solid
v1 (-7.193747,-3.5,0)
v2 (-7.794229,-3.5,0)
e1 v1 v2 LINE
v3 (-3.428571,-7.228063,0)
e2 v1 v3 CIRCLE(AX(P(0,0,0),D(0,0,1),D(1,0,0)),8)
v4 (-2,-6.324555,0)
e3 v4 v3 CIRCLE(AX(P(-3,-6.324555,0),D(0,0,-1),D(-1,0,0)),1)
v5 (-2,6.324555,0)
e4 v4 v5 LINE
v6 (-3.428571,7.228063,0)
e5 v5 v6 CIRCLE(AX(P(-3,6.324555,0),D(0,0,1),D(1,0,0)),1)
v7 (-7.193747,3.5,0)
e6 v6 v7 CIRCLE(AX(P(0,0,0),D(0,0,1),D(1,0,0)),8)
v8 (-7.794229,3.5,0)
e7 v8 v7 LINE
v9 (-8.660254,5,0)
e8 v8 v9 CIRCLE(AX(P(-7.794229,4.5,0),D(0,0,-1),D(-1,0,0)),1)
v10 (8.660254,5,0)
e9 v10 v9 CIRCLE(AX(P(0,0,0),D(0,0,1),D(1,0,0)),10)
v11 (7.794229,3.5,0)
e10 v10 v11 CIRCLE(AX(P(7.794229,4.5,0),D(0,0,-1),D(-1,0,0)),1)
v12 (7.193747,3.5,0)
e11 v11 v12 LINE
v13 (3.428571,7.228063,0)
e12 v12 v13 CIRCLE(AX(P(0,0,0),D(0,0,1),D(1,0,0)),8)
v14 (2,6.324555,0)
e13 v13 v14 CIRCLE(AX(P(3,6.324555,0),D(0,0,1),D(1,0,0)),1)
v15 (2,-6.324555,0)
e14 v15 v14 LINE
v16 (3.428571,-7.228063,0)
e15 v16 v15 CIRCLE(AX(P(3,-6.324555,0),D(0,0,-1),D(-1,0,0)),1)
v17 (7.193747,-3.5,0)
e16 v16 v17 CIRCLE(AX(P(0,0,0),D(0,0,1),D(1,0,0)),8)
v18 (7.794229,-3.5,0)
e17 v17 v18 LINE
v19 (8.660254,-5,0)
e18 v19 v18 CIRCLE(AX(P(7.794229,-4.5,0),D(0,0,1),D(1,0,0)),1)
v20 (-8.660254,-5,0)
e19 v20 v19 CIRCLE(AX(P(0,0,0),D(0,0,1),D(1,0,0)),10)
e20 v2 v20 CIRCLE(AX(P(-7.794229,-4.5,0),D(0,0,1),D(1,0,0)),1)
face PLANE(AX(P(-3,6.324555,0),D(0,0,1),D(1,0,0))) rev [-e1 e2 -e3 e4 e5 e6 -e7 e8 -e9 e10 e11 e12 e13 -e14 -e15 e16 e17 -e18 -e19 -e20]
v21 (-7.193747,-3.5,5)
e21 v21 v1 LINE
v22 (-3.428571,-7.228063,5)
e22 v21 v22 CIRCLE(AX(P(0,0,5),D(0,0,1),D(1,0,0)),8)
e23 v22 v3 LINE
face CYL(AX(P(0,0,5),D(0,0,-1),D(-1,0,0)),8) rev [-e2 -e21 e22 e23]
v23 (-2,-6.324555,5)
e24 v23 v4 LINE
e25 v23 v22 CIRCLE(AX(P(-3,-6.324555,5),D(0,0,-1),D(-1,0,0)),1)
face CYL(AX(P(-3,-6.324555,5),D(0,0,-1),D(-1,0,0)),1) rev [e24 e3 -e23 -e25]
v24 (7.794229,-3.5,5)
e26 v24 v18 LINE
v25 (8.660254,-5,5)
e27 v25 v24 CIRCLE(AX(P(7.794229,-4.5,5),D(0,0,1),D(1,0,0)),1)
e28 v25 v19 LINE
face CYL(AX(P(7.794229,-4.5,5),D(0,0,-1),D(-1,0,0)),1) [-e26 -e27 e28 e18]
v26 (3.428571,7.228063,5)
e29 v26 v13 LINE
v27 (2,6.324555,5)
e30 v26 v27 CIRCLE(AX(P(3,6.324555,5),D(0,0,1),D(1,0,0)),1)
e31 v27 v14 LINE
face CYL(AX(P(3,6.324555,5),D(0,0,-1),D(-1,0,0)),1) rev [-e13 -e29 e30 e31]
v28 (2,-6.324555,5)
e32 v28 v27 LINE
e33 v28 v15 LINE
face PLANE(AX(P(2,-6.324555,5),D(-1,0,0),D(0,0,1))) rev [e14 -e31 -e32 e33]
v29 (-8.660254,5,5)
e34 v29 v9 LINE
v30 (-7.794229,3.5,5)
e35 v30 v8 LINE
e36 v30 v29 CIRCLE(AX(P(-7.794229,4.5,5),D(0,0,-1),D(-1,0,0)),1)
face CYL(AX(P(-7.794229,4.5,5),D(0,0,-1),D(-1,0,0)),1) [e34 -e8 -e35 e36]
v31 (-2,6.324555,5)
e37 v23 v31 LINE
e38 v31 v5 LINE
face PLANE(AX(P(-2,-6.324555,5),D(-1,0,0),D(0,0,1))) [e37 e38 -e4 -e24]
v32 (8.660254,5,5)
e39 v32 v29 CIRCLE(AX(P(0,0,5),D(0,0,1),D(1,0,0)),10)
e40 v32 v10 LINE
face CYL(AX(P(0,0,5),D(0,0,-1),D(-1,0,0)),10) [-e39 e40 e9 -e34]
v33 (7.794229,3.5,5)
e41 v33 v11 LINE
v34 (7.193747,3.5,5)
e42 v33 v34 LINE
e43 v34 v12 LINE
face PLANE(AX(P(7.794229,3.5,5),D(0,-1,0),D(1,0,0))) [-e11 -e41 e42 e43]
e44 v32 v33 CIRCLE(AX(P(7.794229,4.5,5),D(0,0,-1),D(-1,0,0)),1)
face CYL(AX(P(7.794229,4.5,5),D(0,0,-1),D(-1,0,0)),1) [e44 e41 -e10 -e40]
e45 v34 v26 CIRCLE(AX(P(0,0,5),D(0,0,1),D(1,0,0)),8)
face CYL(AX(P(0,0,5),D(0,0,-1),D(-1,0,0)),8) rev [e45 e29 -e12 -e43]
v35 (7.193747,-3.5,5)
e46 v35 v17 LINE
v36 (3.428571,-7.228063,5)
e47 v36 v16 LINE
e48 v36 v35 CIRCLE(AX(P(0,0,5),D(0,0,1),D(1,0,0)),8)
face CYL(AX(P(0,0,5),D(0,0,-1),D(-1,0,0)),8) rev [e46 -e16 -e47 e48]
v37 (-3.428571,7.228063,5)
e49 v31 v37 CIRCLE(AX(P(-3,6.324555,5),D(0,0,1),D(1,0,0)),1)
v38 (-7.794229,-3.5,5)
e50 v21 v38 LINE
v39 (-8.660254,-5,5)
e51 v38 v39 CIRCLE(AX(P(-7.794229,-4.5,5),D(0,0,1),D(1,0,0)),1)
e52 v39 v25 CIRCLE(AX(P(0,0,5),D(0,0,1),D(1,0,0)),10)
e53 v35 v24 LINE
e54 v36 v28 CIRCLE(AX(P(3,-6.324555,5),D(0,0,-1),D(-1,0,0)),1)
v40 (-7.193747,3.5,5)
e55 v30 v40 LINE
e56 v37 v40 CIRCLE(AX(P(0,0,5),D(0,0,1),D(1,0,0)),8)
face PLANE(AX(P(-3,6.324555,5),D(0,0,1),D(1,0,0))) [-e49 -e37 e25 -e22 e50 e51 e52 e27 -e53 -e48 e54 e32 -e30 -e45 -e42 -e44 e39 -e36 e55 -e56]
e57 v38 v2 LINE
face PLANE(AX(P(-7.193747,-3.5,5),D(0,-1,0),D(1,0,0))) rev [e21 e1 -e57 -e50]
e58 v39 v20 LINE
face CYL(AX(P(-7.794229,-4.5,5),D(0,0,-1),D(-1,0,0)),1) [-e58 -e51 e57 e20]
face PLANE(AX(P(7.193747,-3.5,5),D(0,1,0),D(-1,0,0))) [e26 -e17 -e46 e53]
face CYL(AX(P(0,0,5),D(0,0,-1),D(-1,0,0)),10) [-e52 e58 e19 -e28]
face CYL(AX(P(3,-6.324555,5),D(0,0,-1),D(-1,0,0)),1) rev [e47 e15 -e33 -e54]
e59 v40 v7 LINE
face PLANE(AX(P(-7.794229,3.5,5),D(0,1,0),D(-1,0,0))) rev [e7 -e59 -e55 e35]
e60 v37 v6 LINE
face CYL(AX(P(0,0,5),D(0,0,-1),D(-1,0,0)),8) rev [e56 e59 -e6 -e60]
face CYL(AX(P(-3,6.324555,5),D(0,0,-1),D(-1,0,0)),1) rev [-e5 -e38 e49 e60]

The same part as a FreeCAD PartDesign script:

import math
import FreeCAD as App
import Part
import Sketcher

V = App.Vector
Q = App.Units.Quantity

doc = App.newDocument("Part")
body = doc.addObject("PartDesign::Body", "Body")

sketch1 = doc.addObject("Sketcher::SketchObject", "Sketch")
body.addObject(sketch1)
sketch1.AttachmentSupport = (doc.XY_Plane, [""])
sketch1.MapMode = "FlatFace"
sketch1.addGeometry(Part.LineSegment(V(-2, 6.3, 0), V(-2, -6.3, 0)), False)
sketch1.addGeometry(Part.ArcOfCircle(Part.Circle(V(-3, -6.3, 0), V(0, 0, 1), 1), math.radians(-115), math.radians(0)), False)
sketch1.addGeometry(Part.ArcOfCircle(Part.Circle(V(0, 0, 0), V(0, 0, 1), 8), math.radians(-154), math.radians(-115)), False)
sketch1.addGeometry(Part.LineSegment(V(-7.2, -3.5, 0), V(-7.8, -3.5, 0)), False)
sketch1.addGeometry(Part.ArcOfCircle(Part.Circle(V(-7.8, -4.5, 0), V(0, 0, 1), 1), math.radians(90), math.radians(210)), False)
sketch1.addGeometry(Part.ArcOfCircle(Part.Circle(V(0, 0, 0), V(0, 0, 1), 10), math.radians(-150), math.radians(-30)), False)
sketch1.addGeometry(Part.ArcOfCircle(Part.Circle(V(7.8, -4.5, 0), V(0, 0, 1), 1), math.radians(-30), math.radians(90)), False)
sketch1.addGeometry(Part.LineSegment(V(7.8, -3.5, 0), V(7.2, -3.5, 0)), False)
sketch1.addGeometry(Part.ArcOfCircle(Part.Circle(V(0, 0, 0), V(0, 0, 1), 8), math.radians(-65), math.radians(-26)), False)
sketch1.addGeometry(Part.ArcOfCircle(Part.Circle(V(3, -6.3, 0), V(0, 0, 1), 1), math.radians(180), math.radians(295)), False)
sketch1.addGeometry(Part.LineSegment(V(2, -6.3, 0), V(2, 6.3, 0)), False)
sketch1.addGeometry(Part.ArcOfCircle(Part.Circle(V(3, 6.3, 0), V(0, 0, 1), 1), math.radians(65), math.radians(180)), False)
sketch1.addGeometry(Part.ArcOfCircle(Part.Circle(V(0, 0, 0), V(0, 0, 1), 8), math.radians(26), math.radians(65)), False)
sketch1.addGeometry(Part.LineSegment(V(7.2, 3.5, 0), V(7.8, 3.5, 0)), False)
sketch1.addGeometry(Part.ArcOfCircle(Part.Circle(V(7.8, 4.5, 0), V(0, 0, 1), 1), math.radians(-90), math.radians(30)), False)
sketch1.addGeometry(Part.ArcOfCircle(Part.Circle(V(0, 0, 0), V(0, 0, 1), 10), math.radians(30), math.radians(150)), False)
sketch1.addGeometry(Part.ArcOfCircle(Part.Circle(V(-7.8, 4.5, 0), V(0, 0, 1), 1), math.radians(150), math.radians(270)), False)
sketch1.addGeometry(Part.LineSegment(V(-7.8, 3.5, 0), V(-7.2, 3.5, 0)), False)
sketch1.addGeometry(Part.ArcOfCircle(Part.Circle(V(0, 0, 0), V(0, 0, 1), 8), math.radians(115), math.radians(154)), False)
sketch1.addGeometry(Part.ArcOfCircle(Part.Circle(V(-3, 6.3, 0), V(0, 0, 1), 1), math.radians(0), math.radians(115)), False)
sketch1.addConstraint(Sketcher.Constraint("Tangent", 0, 2, 1, 2))
sketch1.addConstraint(Sketcher.Constraint("Tangent", 1, 1, 2, 2))
sketch1.addConstraint(Sketcher.Constraint("Coincident", 2, 1, 3, 1))
sketch1.addConstraint(Sketcher.Constraint("Tangent", 3, 2, 4, 1))
sketch1.addConstraint(Sketcher.Constraint("Tangent", 4, 2, 5, 1))
sketch1.addConstraint(Sketcher.Constraint("Tangent", 5, 2, 6, 1))
sketch1.addConstraint(Sketcher.Constraint("Tangent", 6, 2, 7, 1))
sketch1.addConstraint(Sketcher.Constraint("Coincident", 7, 2, 8, 2))
sketch1.addConstraint(Sketcher.Constraint("Tangent", 8, 1, 9, 2))
sketch1.addConstraint(Sketcher.Constraint("Tangent", 9, 1, 10, 1))
sketch1.addConstraint(Sketcher.Constraint("Tangent", 10, 2, 11, 2))
sketch1.addConstraint(Sketcher.Constraint("Tangent", 11, 1, 12, 2))
sketch1.addConstraint(Sketcher.Constraint("Coincident", 12, 1, 13, 1))
sketch1.addConstraint(Sketcher.Constraint("Tangent", 13, 2, 14, 1))
sketch1.addConstraint(Sketcher.Constraint("Tangent", 14, 2, 15, 1))
sketch1.addConstraint(Sketcher.Constraint("Tangent", 15, 2, 16, 1))
sketch1.addConstraint(Sketcher.Constraint("Tangent", 16, 2, 17, 1))
sketch1.addConstraint(Sketcher.Constraint("Coincident", 17, 2, 18, 2))
sketch1.addConstraint(Sketcher.Constraint("Tangent", 18, 1, 19, 2))
sketch1.addConstraint(Sketcher.Constraint("Tangent", 19, 1, 0, 1))
sketch1.addConstraint(Sketcher.Constraint("Vertical", 0))
sketch1.addConstraint(Sketcher.Constraint("Horizontal", 3))
sketch1.addConstraint(Sketcher.Constraint("Horizontal", 7))
sketch1.addConstraint(Sketcher.Constraint("Vertical", 10))
sketch1.addConstraint(Sketcher.Constraint("Horizontal", 13))
sketch1.addConstraint(Sketcher.Constraint("Horizontal", 17))
sketch1.addConstraint(Sketcher.Constraint("Coincident", 2, 3, -1, 1))
sketch1.addConstraint(Sketcher.Constraint("Coincident", 5, 3, -1, 1))
sketch1.addConstraint(Sketcher.Constraint("Coincident", 8, 3, -1, 1))
sketch1.addConstraint(Sketcher.Constraint("Coincident", 12, 3, -1, 1))
sketch1.addConstraint(Sketcher.Constraint("Coincident", 15, 3, -1, 1))
sketch1.addConstraint(Sketcher.Constraint("Coincident", 18, 3, -1, 1))
sketch1.addConstraint(Sketcher.Constraint("Equal", 1, 4))
sketch1.addConstraint(Sketcher.Constraint("Equal", 4, 6))
sketch1.addConstraint(Sketcher.Constraint("Equal", 2, 8))
sketch1.addConstraint(Sketcher.Constraint("Equal", 6, 9))
sketch1.addConstraint(Sketcher.Constraint("Equal", 9, 11))
sketch1.addConstraint(Sketcher.Constraint("Equal", 8, 12))
sketch1.addConstraint(Sketcher.Constraint("Equal", 11, 14))
sketch1.addConstraint(Sketcher.Constraint("Equal", 5, 15))
sketch1.addConstraint(Sketcher.Constraint("Equal", 14, 16))
sketch1.addConstraint(Sketcher.Constraint("Equal", 12, 18))
sketch1.addConstraint(Sketcher.Constraint("Equal", 16, 19))
sketch1.addConstraint(Sketcher.Constraint("Horizontal", 4, 3, 6, 3))
sketch1.addConstraint(Sketcher.Constraint("Horizontal", 1, 3, 9, 3))
sketch1.addConstraint(Sketcher.Constraint("Horizontal", 14, 3, 16, 3))
sketch1.addConstraint(Sketcher.Constraint("Vertical", 6, 3, 14, 3))
sketch1.addConstraint(Sketcher.Constraint("Radius", 1, Q("1 mm")))
sketch1.addConstraint(Sketcher.Constraint("Radius", 2, Q("8 mm")))
sketch1.addConstraint(Sketcher.Constraint("Radius", 5, Q("10 mm")))
sketch1.addConstraint(Sketcher.Constraint("DistanceX", 1, 3, -1, 1, Q("3 mm")))
sketch1.addConstraint(Sketcher.Constraint("DistanceY", 4, 2, -1, 1, Q("5 mm")))
pad1 = doc.addObject("PartDesign::Pad", "Pad")
body.addObject(pad1)
pad1.Profile = sketch1
pad1.Length = 5

doc.recompute()
